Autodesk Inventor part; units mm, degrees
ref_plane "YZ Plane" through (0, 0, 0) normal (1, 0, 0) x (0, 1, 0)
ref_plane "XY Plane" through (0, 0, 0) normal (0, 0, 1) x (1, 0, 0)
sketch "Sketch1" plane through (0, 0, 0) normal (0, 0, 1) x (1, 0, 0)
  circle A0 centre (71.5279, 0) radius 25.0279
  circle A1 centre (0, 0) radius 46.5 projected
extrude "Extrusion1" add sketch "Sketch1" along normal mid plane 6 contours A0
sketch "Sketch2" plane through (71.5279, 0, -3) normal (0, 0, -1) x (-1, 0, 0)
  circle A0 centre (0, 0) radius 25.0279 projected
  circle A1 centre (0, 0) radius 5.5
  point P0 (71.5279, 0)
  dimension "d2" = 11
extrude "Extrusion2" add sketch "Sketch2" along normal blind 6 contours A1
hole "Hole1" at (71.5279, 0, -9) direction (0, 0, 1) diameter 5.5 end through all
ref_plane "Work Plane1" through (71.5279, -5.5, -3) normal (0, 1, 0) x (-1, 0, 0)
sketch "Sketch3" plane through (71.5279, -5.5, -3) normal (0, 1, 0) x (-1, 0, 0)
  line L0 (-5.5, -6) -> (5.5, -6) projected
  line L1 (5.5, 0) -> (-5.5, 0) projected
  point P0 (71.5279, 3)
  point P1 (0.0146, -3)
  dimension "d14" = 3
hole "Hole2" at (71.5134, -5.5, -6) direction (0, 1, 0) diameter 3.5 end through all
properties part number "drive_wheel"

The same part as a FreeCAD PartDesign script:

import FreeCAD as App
import Part
import Sketcher
from FreeCAD import Vector
Q = App.Units.Quantity

doc = App.newDocument("Part")
body = doc.addObject("PartDesign::Body", "Body")

# Sketch on XY plane
sketch1 = body.newObject("Sketcher::SketchObject", "Sketch")
sketch1.AttachmentSupport = (doc.getObject("XY_Plane"), [""])
sketch1.MapMode = "FlatFace"
sketch1.addGeometry(Part.Circle(Vector(71.5279, 0, 0), Vector(0, 0, 1), 25.0279), False)
sketch1.addConstraint([
    Sketcher.Constraint("PointOnObject", 0, 3, -1),
    Sketcher.Constraint("Diameter", 0, Q("50.0558 mm")),
    Sketcher.Constraint("DistanceX", -1, 1, 0, 3, Q("71.528 mm")),
])
pad1 = body.newObject("PartDesign::Pad", "Pad")
pad1.Profile = sketch1
pad1.Length = 6
pad1.Midplane = True

# Sketch on XY plane
sketch2 = body.newObject("Sketcher::SketchObject", "Sketch001")
sketch2.AttachmentSupport = (doc.getObject("XY_Plane"), [""])
sketch2.MapMode = "FlatFace"
sketch2.AttachmentOffset = App.Placement(Vector(0, 0, -3), App.Rotation())
sketch2.addGeometry(Part.Circle(Vector(71.5279, 0, 0), Vector(0, 0, 1), 5.5), False)
sketch2.addConstraint([
    Sketcher.Constraint("PointOnObject", 0, 3, -1),
    Sketcher.Constraint("Diameter", 0, Q("11 mm")),
    Sketcher.Constraint("DistanceX", -1, 1, 0, 3, Q("71.528 mm")),
])
pad2 = body.newObject("PartDesign::Pad", "Pad001")
pad2.Profile = sketch2
pad2.Length = 6
pad2.Reversed = True

# Sketch on XY plane
sketch3 = body.newObject("Sketcher::SketchObject", "Sketch002")
sketch3.AttachmentSupport = (doc.getObject("XY_Plane"), [""])
sketch3.MapMode = "FlatFace"
sketch3.AttachmentOffset = App.Placement(Vector(0, 0, -9), App.Rotation())
sketch3.addGeometry(Part.Circle(Vector(71.5279, 0, 0), Vector(0, 0, 1), 2.75), False)
sketch3.addConstraint([
    Sketcher.Constraint("PointOnObject", 0, 3, -1),
    Sketcher.Constraint("Diameter", 0, Q("5.5 mm")),
    Sketcher.Constraint("DistanceX", -1, 1, 0, 3, Q("71.528 mm")),
])
doc.recompute()
hole = body.newObject("PartDesign::Hole", "Hole")
hole.Profile = sketch3
hole.ThreadType = "None"
hole.Diameter = 5.5
hole.DepthType = "ThroughAll"
hole.Reversed = True

# Sketch on XZ plane
sketch4 = body.newObject("Sketcher::SketchObject", "Sketch003")
sketch4.AttachmentSupport = (doc.getObject("XZ_Plane"), [""])
sketch4.MapMode = "FlatFace"
sketch4.AttachmentOffset = App.Placement(Vector(0, 0, 5.5), App.Rotation())
sketch4.addGeometry(Part.Circle(Vector(71.5134, -6, 0), Vector(0, 0, 1), 1.75), False)
sketch4.addConstraint([
    Sketcher.Constraint("Diameter", 0, Q("3.5 mm")),
    Sketcher.Constraint("DistanceY", 0, 3, -1, 1, Q("6 mm")),
    Sketcher.Constraint("DistanceX", -1, 1, 0, 3, Q("71.5134 mm")),
])
doc.recompute()
hole2 = body.newObject("PartDesign::Hole", "Hole001")
hole2.Profile = sketch4
hole2.ThreadType = "None"
hole2.Diameter = 3.5
hole2.DepthType = "ThroughAll"

doc.recompute()
